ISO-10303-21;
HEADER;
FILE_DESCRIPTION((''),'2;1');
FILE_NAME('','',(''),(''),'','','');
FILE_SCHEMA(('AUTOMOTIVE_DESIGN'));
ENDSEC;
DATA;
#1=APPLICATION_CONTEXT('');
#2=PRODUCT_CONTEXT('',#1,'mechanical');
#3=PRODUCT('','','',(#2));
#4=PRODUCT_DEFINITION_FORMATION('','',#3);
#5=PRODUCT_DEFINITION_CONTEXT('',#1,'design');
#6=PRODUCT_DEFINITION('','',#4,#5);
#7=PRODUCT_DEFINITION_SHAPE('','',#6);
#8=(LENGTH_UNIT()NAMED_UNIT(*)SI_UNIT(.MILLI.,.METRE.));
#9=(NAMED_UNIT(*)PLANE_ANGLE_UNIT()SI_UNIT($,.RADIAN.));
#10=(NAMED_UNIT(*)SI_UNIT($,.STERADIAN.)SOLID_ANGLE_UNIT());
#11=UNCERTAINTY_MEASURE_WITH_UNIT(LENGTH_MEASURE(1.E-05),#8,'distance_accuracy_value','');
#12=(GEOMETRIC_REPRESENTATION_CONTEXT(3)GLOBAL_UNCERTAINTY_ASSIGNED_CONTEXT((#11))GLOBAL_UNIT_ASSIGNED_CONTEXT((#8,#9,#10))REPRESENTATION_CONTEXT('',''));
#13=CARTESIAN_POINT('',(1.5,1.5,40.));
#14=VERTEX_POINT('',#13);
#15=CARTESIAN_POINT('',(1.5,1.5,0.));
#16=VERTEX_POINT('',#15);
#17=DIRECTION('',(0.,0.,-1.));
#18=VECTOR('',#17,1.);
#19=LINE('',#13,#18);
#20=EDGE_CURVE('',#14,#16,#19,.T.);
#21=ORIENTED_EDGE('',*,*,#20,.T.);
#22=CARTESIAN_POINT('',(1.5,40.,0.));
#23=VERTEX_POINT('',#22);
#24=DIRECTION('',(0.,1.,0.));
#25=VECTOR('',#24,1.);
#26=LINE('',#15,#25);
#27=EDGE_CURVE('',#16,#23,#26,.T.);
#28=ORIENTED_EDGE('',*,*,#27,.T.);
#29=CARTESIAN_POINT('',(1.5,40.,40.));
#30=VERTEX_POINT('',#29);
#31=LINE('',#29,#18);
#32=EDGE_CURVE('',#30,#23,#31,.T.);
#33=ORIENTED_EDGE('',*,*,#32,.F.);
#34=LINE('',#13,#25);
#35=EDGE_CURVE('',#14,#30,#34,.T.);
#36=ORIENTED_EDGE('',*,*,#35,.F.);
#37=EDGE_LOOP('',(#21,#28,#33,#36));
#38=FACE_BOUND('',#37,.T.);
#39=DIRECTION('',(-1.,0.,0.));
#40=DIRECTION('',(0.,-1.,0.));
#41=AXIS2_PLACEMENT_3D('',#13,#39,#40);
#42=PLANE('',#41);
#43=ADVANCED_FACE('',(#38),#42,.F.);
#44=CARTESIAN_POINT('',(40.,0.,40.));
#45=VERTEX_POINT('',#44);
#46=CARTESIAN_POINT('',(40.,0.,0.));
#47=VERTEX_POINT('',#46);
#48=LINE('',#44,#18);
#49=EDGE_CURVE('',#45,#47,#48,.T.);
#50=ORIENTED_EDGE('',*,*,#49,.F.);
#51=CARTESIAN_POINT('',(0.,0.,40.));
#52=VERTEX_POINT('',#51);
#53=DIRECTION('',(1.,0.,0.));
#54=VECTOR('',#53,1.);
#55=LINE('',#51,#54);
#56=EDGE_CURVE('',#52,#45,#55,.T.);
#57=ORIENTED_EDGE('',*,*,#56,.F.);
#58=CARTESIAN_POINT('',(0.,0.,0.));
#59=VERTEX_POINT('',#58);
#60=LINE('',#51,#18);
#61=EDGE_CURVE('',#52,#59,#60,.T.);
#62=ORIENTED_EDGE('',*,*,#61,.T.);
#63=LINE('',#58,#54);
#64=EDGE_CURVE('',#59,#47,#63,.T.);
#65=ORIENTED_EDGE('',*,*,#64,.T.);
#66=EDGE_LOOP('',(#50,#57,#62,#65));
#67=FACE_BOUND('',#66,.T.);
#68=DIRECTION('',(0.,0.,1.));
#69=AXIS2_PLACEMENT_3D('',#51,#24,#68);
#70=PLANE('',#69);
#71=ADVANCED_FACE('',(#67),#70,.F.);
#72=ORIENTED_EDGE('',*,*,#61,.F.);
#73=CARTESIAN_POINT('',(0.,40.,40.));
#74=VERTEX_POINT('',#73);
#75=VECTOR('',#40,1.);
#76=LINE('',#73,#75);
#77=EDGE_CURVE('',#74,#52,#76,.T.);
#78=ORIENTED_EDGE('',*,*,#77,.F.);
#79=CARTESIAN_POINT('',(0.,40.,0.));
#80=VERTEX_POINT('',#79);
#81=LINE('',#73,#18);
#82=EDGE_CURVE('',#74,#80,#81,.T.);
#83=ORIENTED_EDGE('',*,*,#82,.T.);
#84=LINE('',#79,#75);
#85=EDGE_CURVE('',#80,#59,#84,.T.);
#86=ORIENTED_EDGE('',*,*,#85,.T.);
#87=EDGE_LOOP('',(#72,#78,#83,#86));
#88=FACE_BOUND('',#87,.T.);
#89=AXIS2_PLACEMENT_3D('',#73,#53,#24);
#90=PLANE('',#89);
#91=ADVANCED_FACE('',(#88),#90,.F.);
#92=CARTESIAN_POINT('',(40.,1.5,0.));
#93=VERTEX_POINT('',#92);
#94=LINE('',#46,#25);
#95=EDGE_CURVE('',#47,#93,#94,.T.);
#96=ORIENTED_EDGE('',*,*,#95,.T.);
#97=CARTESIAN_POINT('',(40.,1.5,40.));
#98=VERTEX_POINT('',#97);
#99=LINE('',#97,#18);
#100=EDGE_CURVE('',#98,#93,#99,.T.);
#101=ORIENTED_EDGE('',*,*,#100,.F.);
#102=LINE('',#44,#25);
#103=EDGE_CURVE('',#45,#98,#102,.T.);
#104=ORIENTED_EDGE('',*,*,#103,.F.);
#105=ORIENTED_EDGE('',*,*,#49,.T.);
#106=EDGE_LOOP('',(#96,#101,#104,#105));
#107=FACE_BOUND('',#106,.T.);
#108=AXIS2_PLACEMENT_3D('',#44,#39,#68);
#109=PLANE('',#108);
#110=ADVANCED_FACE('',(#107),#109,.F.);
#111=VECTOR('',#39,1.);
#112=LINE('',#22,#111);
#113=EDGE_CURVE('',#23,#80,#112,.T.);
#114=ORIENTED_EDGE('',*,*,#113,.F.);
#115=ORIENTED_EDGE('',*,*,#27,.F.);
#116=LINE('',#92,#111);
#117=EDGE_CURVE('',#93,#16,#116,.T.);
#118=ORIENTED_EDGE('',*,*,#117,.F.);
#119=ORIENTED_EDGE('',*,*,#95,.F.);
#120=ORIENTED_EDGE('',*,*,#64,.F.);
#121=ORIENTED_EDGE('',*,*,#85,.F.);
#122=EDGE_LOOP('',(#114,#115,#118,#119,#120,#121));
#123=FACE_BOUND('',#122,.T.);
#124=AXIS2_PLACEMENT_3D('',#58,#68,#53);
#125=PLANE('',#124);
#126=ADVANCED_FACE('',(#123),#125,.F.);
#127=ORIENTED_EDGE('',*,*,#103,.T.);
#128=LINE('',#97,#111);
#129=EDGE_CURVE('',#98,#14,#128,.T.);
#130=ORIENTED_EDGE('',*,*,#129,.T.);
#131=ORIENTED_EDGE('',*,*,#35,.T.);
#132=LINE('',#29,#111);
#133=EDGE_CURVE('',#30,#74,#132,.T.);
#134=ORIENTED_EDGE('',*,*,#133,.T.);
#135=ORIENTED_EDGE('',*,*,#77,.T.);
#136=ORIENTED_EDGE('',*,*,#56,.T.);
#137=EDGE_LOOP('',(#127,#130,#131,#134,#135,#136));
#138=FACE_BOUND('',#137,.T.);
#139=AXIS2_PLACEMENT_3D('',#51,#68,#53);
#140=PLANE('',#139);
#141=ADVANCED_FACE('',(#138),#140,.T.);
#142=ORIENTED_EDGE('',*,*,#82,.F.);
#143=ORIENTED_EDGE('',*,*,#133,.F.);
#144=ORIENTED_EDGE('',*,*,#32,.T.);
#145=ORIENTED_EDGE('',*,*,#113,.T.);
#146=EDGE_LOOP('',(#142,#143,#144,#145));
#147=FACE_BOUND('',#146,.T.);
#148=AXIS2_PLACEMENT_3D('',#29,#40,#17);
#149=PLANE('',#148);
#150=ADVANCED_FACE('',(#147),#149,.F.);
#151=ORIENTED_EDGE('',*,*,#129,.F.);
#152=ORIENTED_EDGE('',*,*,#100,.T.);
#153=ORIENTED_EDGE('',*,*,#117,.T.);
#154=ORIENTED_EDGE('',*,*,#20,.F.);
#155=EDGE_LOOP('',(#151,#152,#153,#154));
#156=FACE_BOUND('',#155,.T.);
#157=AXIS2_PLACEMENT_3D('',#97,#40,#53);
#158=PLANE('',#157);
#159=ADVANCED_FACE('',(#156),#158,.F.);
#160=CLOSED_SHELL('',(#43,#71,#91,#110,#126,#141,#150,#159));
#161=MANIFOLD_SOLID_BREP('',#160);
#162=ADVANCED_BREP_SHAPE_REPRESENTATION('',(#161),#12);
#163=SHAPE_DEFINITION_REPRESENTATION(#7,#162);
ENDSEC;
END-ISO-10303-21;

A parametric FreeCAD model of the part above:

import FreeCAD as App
import Part
import Sketcher

V = App.Vector
Q = App.Units.Quantity

doc = App.newDocument("Part")
body = doc.addObject("PartDesign::Body", "Body")

# Sketch on XY plane
sketch1 = body.newObject("Sketcher::SketchObject", "Sketch")
sketch1.AttachmentSupport = (doc.getObject("XY_Plane"), [""])
sketch1.MapMode = "FlatFace"
sketch1.addGeometry(Part.LineSegment(V(0, 0, 0), V(40, 0, 0)), False)
sketch1.addGeometry(Part.LineSegment(V(40, 0, 0), V(40, 1.5, 0)), False)
sketch1.addGeometry(Part.LineSegment(V(40, 1.5, 0), V(1.5, 1.5, 0)), False)
sketch1.addGeometry(Part.LineSegment(V(1.5, 1.5, 0), V(1.5, 40, 0)), False)
sketch1.addGeometry(Part.LineSegment(V(1.5, 40, 0), V(0, 40, 0)), False)
sketch1.addGeometry(Part.LineSegment(V(0, 40, 0), V(0, 0, 0)), False)
sketch1.addConstraint(Sketcher.Constraint("Coincident", 0, 2, 1, 1))
sketch1.addConstraint(Sketcher.Constraint("Coincident", 1, 2, 2, 1))
sketch1.addConstraint(Sketcher.Constraint("Coincident", 2, 2, 3, 1))
sketch1.addConstraint(Sketcher.Constraint("Coincident", 3, 2, 4, 1))
sketch1.addConstraint(Sketcher.Constraint("Coincident", 4, 2, 5, 1))
sketch1.addConstraint(Sketcher.Constraint("Coincident", 5, 2, 0, 1))
sketch1.addConstraint(Sketcher.Constraint("Horizontal", 0))
sketch1.addConstraint(Sketcher.Constraint("Vertical", 1))
sketch1.addConstraint(Sketcher.Constraint("Horizontal", 2))
sketch1.addConstraint(Sketcher.Constraint("Vertical", 3))
sketch1.addConstraint(Sketcher.Constraint("Horizontal", 4))
sketch1.addConstraint(Sketcher.Constraint("Vertical", 5))
sketch1.addConstraint(Sketcher.Constraint("Coincident", 5, 2, -1, 1))
sketch1.addConstraint(Sketcher.Constraint("Equal", 4, 1))
sketch1.addConstraint(Sketcher.Constraint("Equal", 2, 3))
sketch1.addConstraint(Sketcher.Constraint("DistanceX", 0, 1, 0, 2, Q("40 mm")))
sketch1.addConstraint(Sketcher.Constraint("DistanceX", 2, 2, 2, 1, Q("38.5 mm")))
pad1 = body.newObject("PartDesign::Pad", "Pad")
pad1.Profile = sketch1
pad1.Length = 40

doc.recompute()
